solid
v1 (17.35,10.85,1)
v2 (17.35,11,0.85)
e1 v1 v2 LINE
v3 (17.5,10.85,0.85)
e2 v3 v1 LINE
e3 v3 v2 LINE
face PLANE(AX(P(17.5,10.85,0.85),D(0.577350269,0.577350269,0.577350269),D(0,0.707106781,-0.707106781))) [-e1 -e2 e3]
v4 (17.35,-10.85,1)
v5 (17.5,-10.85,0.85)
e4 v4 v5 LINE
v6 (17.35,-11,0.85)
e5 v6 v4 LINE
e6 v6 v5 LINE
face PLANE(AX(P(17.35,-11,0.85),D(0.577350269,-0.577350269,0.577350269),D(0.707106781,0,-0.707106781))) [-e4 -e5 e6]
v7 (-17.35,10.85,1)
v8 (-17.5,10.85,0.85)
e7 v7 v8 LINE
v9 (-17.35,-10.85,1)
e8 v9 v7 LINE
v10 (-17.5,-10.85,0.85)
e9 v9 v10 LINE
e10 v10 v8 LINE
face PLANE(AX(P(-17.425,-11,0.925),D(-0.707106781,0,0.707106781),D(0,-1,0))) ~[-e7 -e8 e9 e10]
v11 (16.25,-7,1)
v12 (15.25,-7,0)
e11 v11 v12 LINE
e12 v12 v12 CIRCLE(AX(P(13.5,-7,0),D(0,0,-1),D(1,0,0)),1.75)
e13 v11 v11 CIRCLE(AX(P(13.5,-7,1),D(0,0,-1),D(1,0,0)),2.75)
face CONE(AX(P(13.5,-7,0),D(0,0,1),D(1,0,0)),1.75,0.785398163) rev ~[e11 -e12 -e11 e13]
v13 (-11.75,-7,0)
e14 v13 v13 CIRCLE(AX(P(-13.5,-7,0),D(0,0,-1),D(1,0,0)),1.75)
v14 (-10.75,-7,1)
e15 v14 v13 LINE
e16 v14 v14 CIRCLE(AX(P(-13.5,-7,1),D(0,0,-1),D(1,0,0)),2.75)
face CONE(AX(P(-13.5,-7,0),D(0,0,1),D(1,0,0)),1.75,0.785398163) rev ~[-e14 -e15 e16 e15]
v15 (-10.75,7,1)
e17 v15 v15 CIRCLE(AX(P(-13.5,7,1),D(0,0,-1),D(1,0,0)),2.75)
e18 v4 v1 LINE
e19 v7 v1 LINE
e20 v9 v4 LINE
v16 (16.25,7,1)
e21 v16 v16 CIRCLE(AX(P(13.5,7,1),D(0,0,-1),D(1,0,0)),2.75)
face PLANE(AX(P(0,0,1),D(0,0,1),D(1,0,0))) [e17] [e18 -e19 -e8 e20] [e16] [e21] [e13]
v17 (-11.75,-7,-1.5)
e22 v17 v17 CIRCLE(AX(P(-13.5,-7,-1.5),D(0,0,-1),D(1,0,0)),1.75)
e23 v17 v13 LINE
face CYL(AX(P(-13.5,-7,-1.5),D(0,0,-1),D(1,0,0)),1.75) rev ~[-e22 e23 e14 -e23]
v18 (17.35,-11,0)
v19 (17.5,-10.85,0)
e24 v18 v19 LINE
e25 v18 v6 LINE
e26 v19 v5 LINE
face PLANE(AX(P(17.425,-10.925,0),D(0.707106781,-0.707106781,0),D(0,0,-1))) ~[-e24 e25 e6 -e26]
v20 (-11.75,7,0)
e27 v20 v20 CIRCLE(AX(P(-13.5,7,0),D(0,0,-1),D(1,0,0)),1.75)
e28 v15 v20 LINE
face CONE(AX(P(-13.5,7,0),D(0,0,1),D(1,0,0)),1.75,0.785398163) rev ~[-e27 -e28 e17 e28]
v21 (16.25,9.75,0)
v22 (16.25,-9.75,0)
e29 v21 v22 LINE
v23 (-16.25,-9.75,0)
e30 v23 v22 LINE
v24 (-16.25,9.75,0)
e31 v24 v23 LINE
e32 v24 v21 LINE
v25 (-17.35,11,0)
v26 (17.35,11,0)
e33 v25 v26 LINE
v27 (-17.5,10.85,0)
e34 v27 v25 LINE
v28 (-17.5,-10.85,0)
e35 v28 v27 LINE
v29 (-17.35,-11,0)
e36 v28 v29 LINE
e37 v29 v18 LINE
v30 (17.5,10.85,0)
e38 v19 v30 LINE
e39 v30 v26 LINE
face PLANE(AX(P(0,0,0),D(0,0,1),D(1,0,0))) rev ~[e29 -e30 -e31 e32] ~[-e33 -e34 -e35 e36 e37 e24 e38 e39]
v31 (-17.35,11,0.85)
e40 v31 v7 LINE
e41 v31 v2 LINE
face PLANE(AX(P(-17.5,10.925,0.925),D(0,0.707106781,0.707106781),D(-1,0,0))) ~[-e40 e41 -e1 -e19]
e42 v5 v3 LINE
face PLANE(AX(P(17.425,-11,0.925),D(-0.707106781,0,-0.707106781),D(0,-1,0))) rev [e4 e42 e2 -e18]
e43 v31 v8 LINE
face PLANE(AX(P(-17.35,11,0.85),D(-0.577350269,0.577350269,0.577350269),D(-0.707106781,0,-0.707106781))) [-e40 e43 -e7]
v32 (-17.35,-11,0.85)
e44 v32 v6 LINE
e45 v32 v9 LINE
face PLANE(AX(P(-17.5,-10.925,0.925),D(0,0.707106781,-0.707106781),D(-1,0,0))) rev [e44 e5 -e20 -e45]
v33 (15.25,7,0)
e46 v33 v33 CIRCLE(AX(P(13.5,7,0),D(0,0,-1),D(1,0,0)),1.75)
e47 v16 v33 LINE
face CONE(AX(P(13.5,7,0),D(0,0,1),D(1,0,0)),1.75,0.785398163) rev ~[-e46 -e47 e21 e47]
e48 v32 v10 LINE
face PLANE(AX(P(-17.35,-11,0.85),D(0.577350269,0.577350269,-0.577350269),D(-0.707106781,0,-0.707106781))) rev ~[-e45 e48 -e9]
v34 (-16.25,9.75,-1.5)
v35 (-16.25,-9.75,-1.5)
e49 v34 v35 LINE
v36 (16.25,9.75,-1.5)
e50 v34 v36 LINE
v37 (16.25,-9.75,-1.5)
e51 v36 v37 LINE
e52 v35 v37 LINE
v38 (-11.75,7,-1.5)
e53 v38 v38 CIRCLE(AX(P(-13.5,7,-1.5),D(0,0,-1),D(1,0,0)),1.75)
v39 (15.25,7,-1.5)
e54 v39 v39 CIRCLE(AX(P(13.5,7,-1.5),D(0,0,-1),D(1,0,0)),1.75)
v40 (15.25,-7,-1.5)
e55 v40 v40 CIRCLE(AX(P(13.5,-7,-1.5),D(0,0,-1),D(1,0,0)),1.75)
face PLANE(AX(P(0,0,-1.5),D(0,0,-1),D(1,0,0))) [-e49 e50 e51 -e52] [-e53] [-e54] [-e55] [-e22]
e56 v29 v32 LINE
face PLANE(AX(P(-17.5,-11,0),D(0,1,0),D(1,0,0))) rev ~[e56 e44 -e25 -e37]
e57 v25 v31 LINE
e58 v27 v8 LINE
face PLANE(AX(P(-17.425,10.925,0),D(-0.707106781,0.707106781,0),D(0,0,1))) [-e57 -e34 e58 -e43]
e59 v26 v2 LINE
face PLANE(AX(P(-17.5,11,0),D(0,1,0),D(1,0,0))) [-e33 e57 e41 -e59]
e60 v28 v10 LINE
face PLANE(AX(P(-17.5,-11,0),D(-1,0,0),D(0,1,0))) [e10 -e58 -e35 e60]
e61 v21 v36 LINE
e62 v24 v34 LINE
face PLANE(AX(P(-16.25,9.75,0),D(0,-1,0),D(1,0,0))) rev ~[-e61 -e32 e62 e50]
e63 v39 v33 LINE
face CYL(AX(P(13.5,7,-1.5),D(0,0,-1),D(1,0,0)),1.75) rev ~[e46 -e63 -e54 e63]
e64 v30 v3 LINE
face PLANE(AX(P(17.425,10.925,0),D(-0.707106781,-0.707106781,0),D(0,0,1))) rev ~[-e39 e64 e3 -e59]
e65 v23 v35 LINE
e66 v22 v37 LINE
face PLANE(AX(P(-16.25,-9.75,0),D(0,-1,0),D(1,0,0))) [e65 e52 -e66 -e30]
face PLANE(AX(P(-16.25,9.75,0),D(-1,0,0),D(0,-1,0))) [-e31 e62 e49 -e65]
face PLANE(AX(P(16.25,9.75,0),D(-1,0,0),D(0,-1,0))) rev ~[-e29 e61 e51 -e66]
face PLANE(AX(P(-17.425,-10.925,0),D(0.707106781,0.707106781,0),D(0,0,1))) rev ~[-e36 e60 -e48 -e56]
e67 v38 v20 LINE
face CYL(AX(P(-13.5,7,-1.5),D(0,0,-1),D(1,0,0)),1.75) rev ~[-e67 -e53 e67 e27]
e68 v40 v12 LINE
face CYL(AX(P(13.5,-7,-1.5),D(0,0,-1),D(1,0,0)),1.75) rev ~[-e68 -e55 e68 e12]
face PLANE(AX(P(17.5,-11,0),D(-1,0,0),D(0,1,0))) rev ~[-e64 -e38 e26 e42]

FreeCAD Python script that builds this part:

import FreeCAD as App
import Part
import Sketcher
from FreeCAD import Vector


def edges_at(feature, points):
    """Names of the edges that pass closest to the given points."""
    edges = feature.Shape.Edges
    near = lambda p: min(range(len(edges)), key=lambda i: edges[i].distToShape(Part.Vertex(*p))[0])
    return sorted({f"Edge{near(p) + 1}" for p in points})

doc = App.newDocument("Part")
body = doc.addObject("PartDesign::Body", "Body")

sketch1 = body.newObject("Sketcher::SketchObject", "Sketch")
sketch1.AttachmentSupport = (doc.getObject("XY_Plane"), [""])
sketch1.MapMode = "FlatFace"
sketch1.addGeometry([
    Part.LineSegment(Vector(-17.5, 11, 0), Vector(-17.5, -11, 0)),
    Part.LineSegment(Vector(-17.5, -11, 0), Vector(17.5, -11, 0)),
    Part.LineSegment(Vector(17.5, -11, 0), Vector(17.5, 11, 0)),
    Part.LineSegment(Vector(17.5, 11, 0), Vector(-17.5, 11, 0)),
], False)
sketch1.addConstraint([
    Sketcher.Constraint("Coincident", 0, 2, 1, 1),
    Sketcher.Constraint("Coincident", 1, 2, 2, 1),
    Sketcher.Constraint("Coincident", 2, 2, 3, 1),
    Sketcher.Constraint("Coincident", 3, 2, 0, 1),
    Sketcher.Constraint("Vertical", 0),
    Sketcher.Constraint("Horizontal", 1),
    Sketcher.Constraint("Vertical", 2),
    Sketcher.Constraint("Horizontal", 3),
    Sketcher.Constraint("Symmetric", 0, 2, 2, 2, -1, 1),
    Sketcher.Constraint("DistanceX", 1, 1, 1, 2, 35.0),
    Sketcher.Constraint("DistanceY", 0, 2, 0, 1, 22.0),
])
pad1 = body.newObject("PartDesign::Pad", "Pad")
pad1.Profile = sketch1
pad1.Length = 1
doc.recompute()

chamfer = body.newObject("PartDesign::Chamfer", "Chamfer")
chamfer.Base = (pad1, edges_at(pad1, [
    (-17.5, 0, 1),
    (0, 11, 1),
    (17.5, 0, 1),
    (0, -11, 1),
    (-17.5, 11, 0.5),
    (17.5, 11, 0.5),
    (17.5, -11, 0.5),
    (-17.5, -11, 0.5),
]))
chamfer.Size = 0.15

sketch2 = body.newObject("Sketcher::SketchObject", "Sketch001")
sketch2.AttachmentSupport = (doc.getObject("XY_Plane"), [""])
sketch2.MapMode = "FlatFace"
sketch2.addGeometry([
    Part.LineSegment(Vector(-16.25, -9.75, 0), Vector(-16.25, 9.75, 0)),
    Part.LineSegment(Vector(-16.25, 9.75, 0), Vector(16.25, 9.75, 0)),
    Part.LineSegment(Vector(16.25, 9.75, 0), Vector(16.25, -9.75, 0)),
    Part.LineSegment(Vector(16.25, -9.75, 0), Vector(-16.25, -9.75, 0)),
], False)
sketch2.addConstraint([
    Sketcher.Constraint("Coincident", 0, 2, 1, 1),
    Sketcher.Constraint("Coincident", 1, 2, 2, 1),
    Sketcher.Constraint("Coincident", 2, 2, 3, 1),
    Sketcher.Constraint("Coincident", 3, 2, 0, 1),
    Sketcher.Constraint("Vertical", 0),
    Sketcher.Constraint("Horizontal", 1),
    Sketcher.Constraint("Vertical", 2),
    Sketcher.Constraint("Horizontal", 3),
    Sketcher.Constraint("Symmetric", 0, 2, 2, 2, -1, 1),
    Sketcher.Constraint("DistanceX", 1, 1, 1, 2, 32.5),
    Sketcher.Constraint("DistanceY", 0, 1, 0, 2, 19.5),
])
pad2 = body.newObject("PartDesign::Pad", "Pad001")
pad2.Profile = sketch2
pad2.Length = 1.5
pad2.Reversed = True

sketch3 = body.newObject("Sketcher::SketchObject", "Sketch002")
sketch3.AttachmentSupport = (doc.getObject("XY_Plane"), [""])
sketch3.MapMode = "FlatFace"
sketch3.AttachmentOffset = App.Placement(Vector(0, 0, -1.5), App.Rotation())
sketch3.addGeometry([
    Part.Circle(Vector(-13.5, -7, 0), Vector(0, 0, 1), 1.75),
    Part.Circle(Vector(-13.5, 7, 0), Vector(0, 0, 1), 1.75),
    Part.Circle(Vector(13.5, 7, 0), Vector(0, 0, 1), 1.75),
    Part.Circle(Vector(13.5, -7, 0), Vector(0, 0, 1), 1.75),
], False)
sketch3.addConstraint([
    Sketcher.Constraint("Equal", 0, 1),
    Sketcher.Constraint("Equal", 1, 2),
    Sketcher.Constraint("Equal", 2, 3),
    Sketcher.Constraint("Symmetric", 0, 3, 2, 3, -1, 1),
    Sketcher.Constraint("Symmetric", 1, 3, 3, 3, -1, 1),
    Sketcher.Constraint("Symmetric", 1, 3, 2, 3, -2),
    Sketcher.Constraint("Diameter", 0, 3.5),
    Sketcher.Constraint("DistanceY", 0, 3, -1, 1, 7.0),
    Sketcher.Constraint("DistanceX", 1, 3, 2, 3, 27.0),
])
pocket1 = body.newObject("PartDesign::Pocket", "Pocket")
pocket1.Profile = sketch3
pocket1.Length = 25
pocket1.Reversed = True
doc.recompute()

chamfer2 = body.newObject("PartDesign::Chamfer", "Chamfer001")
chamfer2.Base = (pocket1, edges_at(pocket1, [
    (-15.25, 7, 1),
    (11.75, 7, 1),
    (11.75, -7, 1),
    (-15.25, -7, 1),
]))
chamfer2.Size = 1

doc.recompute()
